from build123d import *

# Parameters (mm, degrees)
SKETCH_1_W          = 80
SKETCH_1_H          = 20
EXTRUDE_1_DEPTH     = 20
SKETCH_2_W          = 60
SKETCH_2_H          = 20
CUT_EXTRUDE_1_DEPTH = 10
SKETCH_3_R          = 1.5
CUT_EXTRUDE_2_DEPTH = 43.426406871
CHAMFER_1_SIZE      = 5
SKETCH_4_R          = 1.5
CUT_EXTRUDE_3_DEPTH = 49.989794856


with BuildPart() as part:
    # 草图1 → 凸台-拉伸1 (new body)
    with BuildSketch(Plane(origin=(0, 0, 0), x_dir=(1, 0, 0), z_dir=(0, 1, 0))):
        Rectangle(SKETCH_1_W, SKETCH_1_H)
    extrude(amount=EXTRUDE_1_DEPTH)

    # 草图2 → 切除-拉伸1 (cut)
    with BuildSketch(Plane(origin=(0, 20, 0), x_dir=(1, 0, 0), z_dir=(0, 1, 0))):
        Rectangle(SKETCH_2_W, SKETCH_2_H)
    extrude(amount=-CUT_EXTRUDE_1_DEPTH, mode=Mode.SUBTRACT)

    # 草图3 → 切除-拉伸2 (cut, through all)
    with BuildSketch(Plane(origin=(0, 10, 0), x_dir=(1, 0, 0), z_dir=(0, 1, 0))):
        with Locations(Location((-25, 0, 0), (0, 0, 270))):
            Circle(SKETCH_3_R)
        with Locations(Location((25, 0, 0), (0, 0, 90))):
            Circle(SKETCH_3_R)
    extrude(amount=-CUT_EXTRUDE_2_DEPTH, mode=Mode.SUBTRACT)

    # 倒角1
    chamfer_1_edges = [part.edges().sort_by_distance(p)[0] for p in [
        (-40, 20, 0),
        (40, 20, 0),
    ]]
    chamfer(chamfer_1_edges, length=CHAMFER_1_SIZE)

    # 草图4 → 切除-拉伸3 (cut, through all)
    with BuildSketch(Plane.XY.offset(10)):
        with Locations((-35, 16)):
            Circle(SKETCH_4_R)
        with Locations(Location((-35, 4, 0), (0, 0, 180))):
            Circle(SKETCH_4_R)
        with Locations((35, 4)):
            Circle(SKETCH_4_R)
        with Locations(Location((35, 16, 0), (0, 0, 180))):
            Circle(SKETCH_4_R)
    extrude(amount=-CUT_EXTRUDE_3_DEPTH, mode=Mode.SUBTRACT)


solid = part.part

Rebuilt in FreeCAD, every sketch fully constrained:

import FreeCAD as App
import Part
import Sketcher
Q = App.Units.Quantity


def edges_at(feature, points):
    """Names of the edges that pass closest to the given points."""
    edges = feature.Shape.Edges
    near = lambda p: min(range(len(edges)), key=lambda i: edges[i].distToShape(Part.Vertex(*p))[0])
    return sorted({f"Edge{near(p) + 1}" for p in points})

doc = App.newDocument("Part")
body = doc.addObject("PartDesign::Body", "Body")

sketch1 = doc.addObject("Sketcher::SketchObject", "Sketch")
body.addObject(sketch1)
sketch1.AttachmentSupport = (doc.XZ_Plane, [""])
sketch1.MapMode = "FlatFace"
sketch1.addGeometry([
    Part.LineSegment(App.Vector(-40, -10, 0), App.Vector(-40, 10, 0)),
    Part.LineSegment(App.Vector(-40, 10, 0), App.Vector(40, 10, 0)),
    Part.LineSegment(App.Vector(40, 10, 0), App.Vector(40, -10, 0)),
    Part.LineSegment(App.Vector(40, -10, 0), App.Vector(-40, -10, 0)),
], False)
sketch1.addConstraint([
    Sketcher.Constraint("Coincident", 0, 2, 1, 1),
    Sketcher.Constraint("Coincident", 1, 2, 2, 1),
    Sketcher.Constraint("Coincident", 2, 2, 3, 1),
    Sketcher.Constraint("Coincident", 3, 2, 0, 1),
    Sketcher.Constraint("Vertical", 0),
    Sketcher.Constraint("Horizontal", 1),
    Sketcher.Constraint("Vertical", 2),
    Sketcher.Constraint("Horizontal", 3),
    Sketcher.Constraint("Symmetric", 0, 2, 2, 2, -1, 1),
    Sketcher.Constraint("DistanceX", 1, 1, 1, 2, Q("80 mm")),
    Sketcher.Constraint("DistanceY", 0, 1, 0, 2, Q("20 mm")),
])
pad1 = doc.addObject("PartDesign::Pad", "Pad")
body.addObject(pad1)
pad1.Profile = sketch1
pad1.Length = 20
pad1.Reversed = True

sketch2 = doc.addObject("Sketcher::SketchObject", "Sketch001")
body.addObject(sketch2)
sketch2.AttachmentSupport = (doc.XZ_Plane, [""])
sketch2.MapMode = "FlatFace"
sketch2.AttachmentOffset = App.Placement(App.Vector(0, 0, -20), App.Rotation())
sketch2.addGeometry([
    Part.LineSegment(App.Vector(-30, -10, 0), App.Vector(-30, 10, 0)),
    Part.LineSegment(App.Vector(-30, 10, 0), App.Vector(30, 10, 0)),
    Part.LineSegment(App.Vector(30, 10, 0), App.Vector(30, -10, 0)),
    Part.LineSegment(App.Vector(30, -10, 0), App.Vector(-30, -10, 0)),
], False)
sketch2.addConstraint([
    Sketcher.Constraint("Coincident", 0, 2, 1, 1),
    Sketcher.Constraint("Coincident", 1, 2, 2, 1),
    Sketcher.Constraint("Coincident", 2, 2, 3, 1),
    Sketcher.Constraint("Coincident", 3, 2, 0, 1),
    Sketcher.Constraint("Vertical", 0),
    Sketcher.Constraint("Horizontal", 1),
    Sketcher.Constraint("Vertical", 2),
    Sketcher.Constraint("Horizontal", 3),
    Sketcher.Constraint("Symmetric", 0, 2, 2, 2, -1, 1),
    Sketcher.Constraint("DistanceX", 1, 1, 1, 2, Q("60 mm")),
    Sketcher.Constraint("DistanceY", 0, 1, 0, 2, Q("20 mm")),
])
pocket1 = doc.addObject("PartDesign::Pocket", "Pocket")
body.addObject(pocket1)
pocket1.Profile = sketch2
pocket1.Length = 10
pocket1.Reversed = True

sketch3 = doc.addObject("Sketcher::SketchObject", "Sketch002")
body.addObject(sketch3)
sketch3.AttachmentSupport = (doc.XZ_Plane, [""])
sketch3.MapMode = "FlatFace"
sketch3.AttachmentOffset = App.Placement(App.Vector(0, 0, -10), App.Rotation())
sketch3.addGeometry([
    Part.Circle(App.Vector(-25, 0, 0), App.Vector(0, 0, 1), 1.5),
    Part.Circle(App.Vector(25, 0, 0), App.Vector(0, 0, 1), 1.5),
], False)
sketch3.addConstraint([
    Sketcher.Constraint("Equal", 0, 1),
    Sketcher.Constraint("Symmetric", 0, 3, 1, 3, -1, 1),
    Sketcher.Constraint("PointOnObject", 0, 3, -1),
    Sketcher.Constraint("Diameter", 0, Q("3 mm")),
    Sketcher.Constraint("DistanceX", 0, 3, -1, 1, Q("25 mm")),
])
pocket2 = doc.addObject("PartDesign::Pocket", "Pocket001")
body.addObject(pocket2)
pocket2.Profile = sketch3
pocket2.Type = "ThroughAll"
pocket2.Reversed = True
doc.recompute()

chamfer = doc.addObject("PartDesign::Chamfer", "Chamfer")
body.addObject(chamfer)
chamfer.Base = (pocket2, edges_at(pocket2, [(-40, 20, 0), (40, 20, 0)]))
chamfer.Size = 5

sketch4 = doc.addObject("Sketcher::SketchObject", "Sketch003")
body.addObject(sketch4)
sketch4.AttachmentSupport = (doc.XY_Plane, [""])
sketch4.MapMode = "FlatFace"
sketch4.AttachmentOffset = App.Placement(App.Vector(0, 0, 10), App.Rotation())
sketch4.addGeometry([
    Part.Circle(App.Vector(-35, 16, 0), App.Vector(0, 0, 1), 1.5),
    Part.Circle(App.Vector(-35, 4, 0), App.Vector(0, 0, 1), 1.5),
    Part.Circle(App.Vector(35, 4, 0), App.Vector(0, 0, 1), 1.5),
    Part.Circle(App.Vector(35, 16, 0), App.Vector(0, 0, 1), 1.5),
], False)
sketch4.addConstraint([
    Sketcher.Constraint("Equal", 0, 1),
    Sketcher.Constraint("Equal", 1, 2),
    Sketcher.Constraint("Equal", 2, 3),
    Sketcher.Constraint("Symmetric", 1, 3, 2, 3, -2),
    Sketcher.Constraint("Symmetric", 0, 3, 3, 3, -2),
    Sketcher.Constraint("Vertical", 0, 3, 1, 3),
    Sketcher.Constraint("Diameter", 0, Q("3 mm")),
    Sketcher.Constraint("DistanceX", 0, 3, -1, 1, Q("35 mm")),
    Sketcher.Constraint("DistanceY", -1, 1, 0, 3, Q("16 mm")),
    Sketcher.Constraint("DistanceY", -1, 1, 1, 3, Q("4 mm")),
])
pocket3 = doc.addObject("PartDesign::Pocket", "Pocket002")
body.addObject(pocket3)
pocket3.Profile = sketch4
pocket3.Type = "ThroughAll"

doc.recompute()
